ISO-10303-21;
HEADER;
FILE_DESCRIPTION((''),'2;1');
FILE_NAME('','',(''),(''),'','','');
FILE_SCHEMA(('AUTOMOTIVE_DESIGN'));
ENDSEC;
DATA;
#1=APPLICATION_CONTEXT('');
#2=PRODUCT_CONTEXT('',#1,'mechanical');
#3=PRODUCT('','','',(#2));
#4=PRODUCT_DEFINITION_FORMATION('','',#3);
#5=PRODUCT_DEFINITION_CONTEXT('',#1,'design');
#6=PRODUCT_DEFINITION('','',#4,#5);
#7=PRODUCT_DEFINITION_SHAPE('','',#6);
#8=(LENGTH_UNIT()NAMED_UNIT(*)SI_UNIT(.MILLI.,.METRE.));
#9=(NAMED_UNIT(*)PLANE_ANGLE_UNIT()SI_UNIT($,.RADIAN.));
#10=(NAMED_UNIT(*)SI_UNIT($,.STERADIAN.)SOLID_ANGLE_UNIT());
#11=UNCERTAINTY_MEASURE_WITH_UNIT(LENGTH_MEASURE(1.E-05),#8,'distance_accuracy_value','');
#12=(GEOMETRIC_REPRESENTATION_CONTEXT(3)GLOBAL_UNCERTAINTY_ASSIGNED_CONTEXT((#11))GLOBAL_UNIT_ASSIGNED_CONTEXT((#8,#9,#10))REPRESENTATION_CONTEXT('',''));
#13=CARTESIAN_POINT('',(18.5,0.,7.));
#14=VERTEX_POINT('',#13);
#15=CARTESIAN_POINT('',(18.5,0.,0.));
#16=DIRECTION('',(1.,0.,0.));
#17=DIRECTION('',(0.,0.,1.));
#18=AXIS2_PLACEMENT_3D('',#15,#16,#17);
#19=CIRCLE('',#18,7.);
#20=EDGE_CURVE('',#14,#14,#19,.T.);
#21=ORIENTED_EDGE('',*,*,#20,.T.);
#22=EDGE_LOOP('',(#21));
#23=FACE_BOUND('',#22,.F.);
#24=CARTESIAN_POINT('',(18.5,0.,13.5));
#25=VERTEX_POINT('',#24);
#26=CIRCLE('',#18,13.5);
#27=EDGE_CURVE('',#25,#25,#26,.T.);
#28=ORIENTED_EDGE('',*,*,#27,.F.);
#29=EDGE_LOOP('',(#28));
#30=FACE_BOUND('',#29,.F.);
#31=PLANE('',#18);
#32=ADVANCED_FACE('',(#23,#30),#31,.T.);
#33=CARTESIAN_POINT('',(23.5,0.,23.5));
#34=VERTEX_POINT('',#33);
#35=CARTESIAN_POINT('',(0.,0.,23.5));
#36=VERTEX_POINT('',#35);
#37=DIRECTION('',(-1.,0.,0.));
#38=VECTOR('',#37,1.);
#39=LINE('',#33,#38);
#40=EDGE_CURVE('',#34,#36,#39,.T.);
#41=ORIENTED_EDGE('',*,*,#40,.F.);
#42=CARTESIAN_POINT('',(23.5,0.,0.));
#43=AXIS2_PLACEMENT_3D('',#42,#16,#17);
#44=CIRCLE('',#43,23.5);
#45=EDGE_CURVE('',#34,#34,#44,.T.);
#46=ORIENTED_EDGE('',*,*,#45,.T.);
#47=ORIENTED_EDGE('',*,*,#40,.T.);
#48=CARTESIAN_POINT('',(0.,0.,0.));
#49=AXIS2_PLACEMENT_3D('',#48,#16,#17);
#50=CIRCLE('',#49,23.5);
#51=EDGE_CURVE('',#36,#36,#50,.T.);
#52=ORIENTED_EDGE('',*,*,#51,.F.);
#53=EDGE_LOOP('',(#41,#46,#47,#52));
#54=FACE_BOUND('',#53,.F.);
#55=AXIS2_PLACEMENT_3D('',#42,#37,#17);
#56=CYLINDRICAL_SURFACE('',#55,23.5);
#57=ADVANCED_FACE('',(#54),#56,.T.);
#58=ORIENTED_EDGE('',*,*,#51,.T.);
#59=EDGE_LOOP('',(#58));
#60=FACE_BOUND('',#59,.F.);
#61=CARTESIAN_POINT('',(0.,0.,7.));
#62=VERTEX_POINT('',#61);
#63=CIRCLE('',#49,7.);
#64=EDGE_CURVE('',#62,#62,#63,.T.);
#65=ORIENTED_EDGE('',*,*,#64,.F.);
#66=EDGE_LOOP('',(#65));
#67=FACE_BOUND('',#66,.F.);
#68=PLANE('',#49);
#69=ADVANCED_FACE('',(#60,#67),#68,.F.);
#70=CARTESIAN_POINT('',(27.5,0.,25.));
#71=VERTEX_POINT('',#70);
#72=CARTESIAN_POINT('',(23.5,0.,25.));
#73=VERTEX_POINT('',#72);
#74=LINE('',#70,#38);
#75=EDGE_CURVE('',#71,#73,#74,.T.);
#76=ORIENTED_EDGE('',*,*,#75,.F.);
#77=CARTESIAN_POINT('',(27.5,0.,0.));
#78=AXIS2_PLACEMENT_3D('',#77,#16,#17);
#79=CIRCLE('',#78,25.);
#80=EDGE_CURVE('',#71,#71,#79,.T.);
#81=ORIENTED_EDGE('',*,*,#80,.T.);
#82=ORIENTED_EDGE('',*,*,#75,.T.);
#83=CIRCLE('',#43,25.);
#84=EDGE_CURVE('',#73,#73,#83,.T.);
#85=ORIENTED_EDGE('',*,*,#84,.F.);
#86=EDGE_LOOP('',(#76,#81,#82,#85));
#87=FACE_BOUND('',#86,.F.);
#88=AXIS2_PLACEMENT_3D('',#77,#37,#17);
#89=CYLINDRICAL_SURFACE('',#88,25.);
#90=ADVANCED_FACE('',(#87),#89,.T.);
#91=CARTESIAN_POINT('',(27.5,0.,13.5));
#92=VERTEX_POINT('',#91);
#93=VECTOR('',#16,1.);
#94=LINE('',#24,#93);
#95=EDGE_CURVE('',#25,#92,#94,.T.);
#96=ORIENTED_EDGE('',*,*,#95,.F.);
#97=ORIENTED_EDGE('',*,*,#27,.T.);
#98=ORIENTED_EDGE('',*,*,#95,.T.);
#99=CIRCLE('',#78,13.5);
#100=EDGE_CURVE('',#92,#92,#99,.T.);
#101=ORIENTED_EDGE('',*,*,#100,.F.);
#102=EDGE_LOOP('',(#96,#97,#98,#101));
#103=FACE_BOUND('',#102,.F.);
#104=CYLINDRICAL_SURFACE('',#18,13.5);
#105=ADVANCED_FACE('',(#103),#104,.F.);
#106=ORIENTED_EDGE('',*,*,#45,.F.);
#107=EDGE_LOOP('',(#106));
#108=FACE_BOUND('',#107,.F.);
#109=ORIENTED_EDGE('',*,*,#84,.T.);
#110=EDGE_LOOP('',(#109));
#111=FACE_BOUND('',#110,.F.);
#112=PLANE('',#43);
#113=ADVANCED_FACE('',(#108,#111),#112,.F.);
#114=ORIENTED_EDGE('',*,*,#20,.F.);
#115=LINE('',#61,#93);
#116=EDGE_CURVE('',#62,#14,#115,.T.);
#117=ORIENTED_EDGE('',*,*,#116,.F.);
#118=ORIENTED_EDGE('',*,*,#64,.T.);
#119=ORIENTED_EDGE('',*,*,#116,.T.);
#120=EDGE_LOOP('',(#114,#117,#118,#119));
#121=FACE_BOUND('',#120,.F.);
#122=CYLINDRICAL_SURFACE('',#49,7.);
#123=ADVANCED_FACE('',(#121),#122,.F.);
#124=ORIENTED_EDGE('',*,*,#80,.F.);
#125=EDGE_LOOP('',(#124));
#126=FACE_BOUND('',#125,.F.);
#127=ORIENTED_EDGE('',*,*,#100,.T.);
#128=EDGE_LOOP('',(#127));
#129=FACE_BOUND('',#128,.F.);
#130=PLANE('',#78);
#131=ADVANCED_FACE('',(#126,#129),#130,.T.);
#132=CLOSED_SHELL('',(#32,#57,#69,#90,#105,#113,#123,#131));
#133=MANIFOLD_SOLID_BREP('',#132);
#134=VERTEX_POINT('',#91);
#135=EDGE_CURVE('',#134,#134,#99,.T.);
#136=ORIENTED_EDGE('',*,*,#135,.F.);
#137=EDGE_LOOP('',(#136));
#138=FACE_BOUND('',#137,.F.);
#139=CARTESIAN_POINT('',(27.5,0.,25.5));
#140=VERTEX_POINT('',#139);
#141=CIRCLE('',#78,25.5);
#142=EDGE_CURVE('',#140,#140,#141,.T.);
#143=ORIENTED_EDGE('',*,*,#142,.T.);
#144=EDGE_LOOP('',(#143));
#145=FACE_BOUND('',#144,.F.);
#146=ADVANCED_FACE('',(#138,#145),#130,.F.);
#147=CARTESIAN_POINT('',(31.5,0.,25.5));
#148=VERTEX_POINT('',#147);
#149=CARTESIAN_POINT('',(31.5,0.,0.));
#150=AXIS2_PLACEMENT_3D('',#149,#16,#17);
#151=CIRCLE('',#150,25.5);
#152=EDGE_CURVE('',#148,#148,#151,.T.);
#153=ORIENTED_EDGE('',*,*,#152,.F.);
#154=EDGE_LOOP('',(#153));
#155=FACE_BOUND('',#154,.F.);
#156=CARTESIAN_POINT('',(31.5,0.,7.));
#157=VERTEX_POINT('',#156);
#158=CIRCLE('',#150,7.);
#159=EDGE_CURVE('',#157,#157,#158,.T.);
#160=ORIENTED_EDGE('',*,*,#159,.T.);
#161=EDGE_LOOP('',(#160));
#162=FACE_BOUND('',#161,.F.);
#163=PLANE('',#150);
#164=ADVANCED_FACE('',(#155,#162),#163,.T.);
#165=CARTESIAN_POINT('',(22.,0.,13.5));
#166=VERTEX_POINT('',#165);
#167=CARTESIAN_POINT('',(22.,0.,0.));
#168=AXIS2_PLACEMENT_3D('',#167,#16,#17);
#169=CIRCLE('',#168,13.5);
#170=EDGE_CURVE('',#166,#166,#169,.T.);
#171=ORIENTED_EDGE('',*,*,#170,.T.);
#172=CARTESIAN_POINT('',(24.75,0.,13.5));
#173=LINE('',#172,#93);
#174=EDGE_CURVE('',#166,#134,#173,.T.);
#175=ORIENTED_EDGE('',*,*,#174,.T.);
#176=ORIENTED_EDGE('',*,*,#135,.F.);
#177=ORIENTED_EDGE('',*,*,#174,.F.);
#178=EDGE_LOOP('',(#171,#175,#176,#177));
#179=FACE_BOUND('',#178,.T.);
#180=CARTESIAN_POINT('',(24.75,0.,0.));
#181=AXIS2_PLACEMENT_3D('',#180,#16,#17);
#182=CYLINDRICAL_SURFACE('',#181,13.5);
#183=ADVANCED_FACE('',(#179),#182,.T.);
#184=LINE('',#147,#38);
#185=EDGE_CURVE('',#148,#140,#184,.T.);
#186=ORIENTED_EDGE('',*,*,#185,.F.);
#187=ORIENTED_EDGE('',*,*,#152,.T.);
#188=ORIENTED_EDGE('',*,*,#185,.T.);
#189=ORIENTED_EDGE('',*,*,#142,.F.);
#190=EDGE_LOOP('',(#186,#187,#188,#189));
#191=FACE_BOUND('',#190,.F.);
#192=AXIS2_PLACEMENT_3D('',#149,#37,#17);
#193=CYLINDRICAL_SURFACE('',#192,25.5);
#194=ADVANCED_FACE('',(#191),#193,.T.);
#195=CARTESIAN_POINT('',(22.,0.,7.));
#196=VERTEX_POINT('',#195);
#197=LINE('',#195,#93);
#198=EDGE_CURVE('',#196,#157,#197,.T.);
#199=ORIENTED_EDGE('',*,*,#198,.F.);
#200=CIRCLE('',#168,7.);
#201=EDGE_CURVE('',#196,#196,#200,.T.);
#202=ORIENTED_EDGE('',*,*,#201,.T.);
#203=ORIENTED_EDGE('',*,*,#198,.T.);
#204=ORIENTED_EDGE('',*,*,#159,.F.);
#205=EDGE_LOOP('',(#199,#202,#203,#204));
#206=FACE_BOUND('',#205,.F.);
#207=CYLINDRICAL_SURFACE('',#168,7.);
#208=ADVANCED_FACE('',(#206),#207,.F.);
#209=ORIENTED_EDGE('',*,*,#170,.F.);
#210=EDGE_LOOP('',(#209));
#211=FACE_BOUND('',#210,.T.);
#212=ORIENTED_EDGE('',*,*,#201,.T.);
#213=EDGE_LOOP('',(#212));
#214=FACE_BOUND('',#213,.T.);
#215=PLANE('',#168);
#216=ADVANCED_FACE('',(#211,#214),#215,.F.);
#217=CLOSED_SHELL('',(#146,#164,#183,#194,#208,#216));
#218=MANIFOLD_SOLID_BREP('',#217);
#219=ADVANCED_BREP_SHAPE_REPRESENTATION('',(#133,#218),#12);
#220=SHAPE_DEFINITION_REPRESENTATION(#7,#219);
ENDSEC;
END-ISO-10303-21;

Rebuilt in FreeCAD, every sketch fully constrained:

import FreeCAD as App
import Part
import Sketcher
Q = App.Units.Quantity


def add_polygon(sketch, points):
    """Adds a closed chain of lines whose ends are joined by coincident constraints."""
    first, n = sketch.GeometryCount, len(points)
    for a, b in zip(points, points[1:] + points[:1]):
        sketch.addGeometry(Part.LineSegment(App.Vector(*a, 0), App.Vector(*b, 0)), False)
    for i in range(n):
        sketch.addConstraint(Sketcher.Constraint("Coincident", first + i, 2, first + (i + 1) % n, 1))

doc = App.newDocument("Part")
body = doc.addObject("PartDesign::Body", "Body")

# Sketch on XZ plane
sketch1 = doc.addObject("Sketcher::SketchObject", "Sketch")
body.addObject(sketch1)
sketch1.AttachmentSupport = (doc.XZ_Plane, [""])
sketch1.MapMode = "FlatFace"
add_polygon(sketch1, [(0, 23.5), (0, 7), (18.5, 7), (18.5, 13.5), (27.5, 13.5), (27.5, 25), (23.5, 25), (23.5, 23.5)])  # lines 0-7
sketch1.addConstraint(Sketcher.Constraint("Vertical", 0))
sketch1.addConstraint(Sketcher.Constraint("Horizontal", 1))
sketch1.addConstraint(Sketcher.Constraint("Vertical", 2))
sketch1.addConstraint(Sketcher.Constraint("Horizontal", 3))
sketch1.addConstraint(Sketcher.Constraint("Vertical", 4))
sketch1.addConstraint(Sketcher.Constraint("Horizontal", 5))
sketch1.addConstraint(Sketcher.Constraint("Vertical", 6))
sketch1.addConstraint(Sketcher.Constraint("Horizontal", 7))
sketch1.addConstraint(Sketcher.Constraint("PointOnObject", 0, 2, -2))
sketch1.addConstraint(Sketcher.Constraint("DistanceX", 3, 1, 3, 2, Q("9 mm")))
sketch1.addConstraint(Sketcher.Constraint("DistanceX", 5, 2, 5, 1, Q("4 mm")))
sketch1.addConstraint(Sketcher.Constraint("DistanceX", 1, 1, 1, 2, Q("18.5 mm")))
sketch1.addConstraint(Sketcher.Constraint("DistanceY", 0, 2, 0, 1, Q("16.5 mm")))
sketch1.addConstraint(Sketcher.Constraint("DistanceY", 2, 1, 2, 2, Q("6.5 mm")))
sketch1.addConstraint(Sketcher.Constraint("DistanceY", 4, 1, 4, 2, Q("11.5 mm")))
sketch1.addConstraint(Sketcher.Constraint("DistanceY", -1, 1, 0, 2, Q("7 mm")))
revolution = doc.addObject("PartDesign::Revolution", "Revolution")
body.addObject(revolution)
revolution.Profile = sketch1
revolution.ReferenceAxis = (sketch1, ["H_Axis"])
revolution.Angle = 360
body2 = doc.addObject("PartDesign::Body", "Body001")

# Sketch on XZ plane
sketch2 = doc.addObject("Sketcher::SketchObject", "Sketch001")
body2.addObject(sketch2)
sketch2.AttachmentSupport = (doc.getObject("XZ_Plane001"), [""])
sketch2.MapMode = "FlatFace"
add_polygon(sketch2, [(31.5, 7), (31.5, 25.5), (27.5, 25.5), (27.5, 13.5), (22, 13.5), (22, 7)])  # lines 0-5
sketch2.addConstraint(Sketcher.Constraint("Vertical", 0))
sketch2.addConstraint(Sketcher.Constraint("Horizontal", 1))
sketch2.addConstraint(Sketcher.Constraint("Vertical", 2))
sketch2.addConstraint(Sketcher.Constraint("Horizontal", 3))
sketch2.addConstraint(Sketcher.Constraint("Vertical", 4))
sketch2.addConstraint(Sketcher.Constraint("Horizontal", 5))
sketch2.addConstraint(Sketcher.Constraint("DistanceX", 1, 2, 1, 1, Q("4 mm")))
sketch2.addConstraint(Sketcher.Constraint("DistanceY", 2, 2, 2, 1, Q("12 mm")))
sketch2.addConstraint(Sketcher.Constraint("DistanceX", 3, 2, 3, 1, Q("5.5 mm")))
sketch2.addConstraint(Sketcher.Constraint("DistanceY", 0, 1, 0, 2, Q("18.5 mm")))
sketch2.addConstraint(Sketcher.Constraint("DistanceX", -1, 1, 3, 2, Q("22 mm")))
sketch2.addConstraint(Sketcher.Constraint("DistanceY", -1, 1, 4, 2, Q("7 mm")))
revolution2 = doc.addObject("PartDesign::Revolution", "Revolution001")
body2.addObject(revolution2)
revolution2.Profile = sketch2
revolution2.ReferenceAxis = (sketch2, ["H_Axis"])
revolution2.Angle = 360

doc.recompute()
